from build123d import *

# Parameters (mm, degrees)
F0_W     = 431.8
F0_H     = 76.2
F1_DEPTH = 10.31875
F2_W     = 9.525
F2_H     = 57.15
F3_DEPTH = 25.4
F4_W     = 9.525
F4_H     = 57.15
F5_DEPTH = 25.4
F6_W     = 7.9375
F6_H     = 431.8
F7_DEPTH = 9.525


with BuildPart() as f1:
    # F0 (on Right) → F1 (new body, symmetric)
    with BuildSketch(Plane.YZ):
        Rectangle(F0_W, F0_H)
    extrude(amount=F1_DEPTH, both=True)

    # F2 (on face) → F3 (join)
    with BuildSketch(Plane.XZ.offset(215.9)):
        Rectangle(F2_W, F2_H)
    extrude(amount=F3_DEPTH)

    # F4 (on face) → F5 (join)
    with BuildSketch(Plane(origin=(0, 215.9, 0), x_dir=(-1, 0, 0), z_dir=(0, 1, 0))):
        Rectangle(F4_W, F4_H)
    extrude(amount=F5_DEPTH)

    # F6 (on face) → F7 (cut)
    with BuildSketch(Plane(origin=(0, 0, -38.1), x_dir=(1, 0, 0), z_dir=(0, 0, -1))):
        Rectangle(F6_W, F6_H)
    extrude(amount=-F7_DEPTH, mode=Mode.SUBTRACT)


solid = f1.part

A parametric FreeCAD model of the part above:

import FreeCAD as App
import Part
import Sketcher

V = App.Vector
Q = App.Units.Quantity


def add_polygon(sketch, points):
    """Adds a closed chain of lines whose ends are joined by coincident constraints."""
    first, n = sketch.GeometryCount, len(points)
    for a, b in zip(points, points[1:] + points[:1]):
        sketch.addGeometry(Part.LineSegment(App.Vector(*a, 0), App.Vector(*b, 0)), False)
    for i in range(n):
        sketch.addConstraint(Sketcher.Constraint("Coincident", first + i, 2, first + (i + 1) % n, 1))

doc = App.newDocument("Part")
params = doc.addObject("Spreadsheet::Sheet", "Params")
for row, (alias, value) in enumerate([
    ("sketch1_width", "17 in"),
    ("sketch1_height", "3 in"),
    ("pad1_length", "0.8125 in"),
    ("sketch2_height", "2.25 in"),
    ("sketch2_width", "0.375 in"),
    ("pad2_length", "1 in"),
    ("sketch3_height", "2.25 in"),
    ("sketch3_width", "0.375 in"),
    ("pad3_length", "1 in"),
    ("sketch4_height", "17 in"),
    ("sketch4_width", "0.3125 in"),
    ("pocket1_length", "0.375 in"),
], start=1):
    params.set(f"A{row}", alias)
    params.set(f"B{row}", "=" + value)
    params.setAlias(f"B{row}", alias)

body = doc.addObject("PartDesign::Body", "Body")

sketch1 = doc.addObject("Sketcher::SketchObject", "Sketch")
body.addObject(sketch1)
sketch1.AttachmentSupport = (doc.YZ_Plane, [""])
sketch1.MapMode = "FlatFace"
add_polygon(sketch1, [(-216, 38), (-216, -38), (216, -38), (216, 38)])
sketch1.addConstraint(Sketcher.Constraint("Vertical", 0))
sketch1.addConstraint(Sketcher.Constraint("Horizontal", 1))
sketch1.addConstraint(Sketcher.Constraint("Vertical", 2))
sketch1.addConstraint(Sketcher.Constraint("Horizontal", 3))
sketch1.addConstraint(Sketcher.Constraint("Symmetric", 0, 2, 2, 2, -1, 1))
sketch1.addConstraint(Sketcher.Constraint("DistanceX", 1, 1, 1, 2, Q("17 in")))
sketch1.addConstraint(Sketcher.Constraint("DistanceY", 0, 2, 0, 1, Q("3 in")))
sketch1.setExpression("Constraints[9]", "Params.sketch1_width")
sketch1.setExpression("Constraints[10]", "Params.sketch1_height")
pad1 = doc.addObject("PartDesign::Pad", "Pad")
body.addObject(pad1)
pad1.Profile = sketch1
pad1.setExpression("Length", "Params.pad1_length")
pad1.Midplane = True

sketch2 = doc.addObject("Sketcher::SketchObject", "Sketch001")
body.addObject(sketch2)
sketch2.AttachmentSupport = (doc.XZ_Plane, [""])
sketch2.MapMode = "FlatFace"
sketch2.AttachmentOffset = App.Placement(V(0, 0, 8.5 * 25.4), App.Rotation())
add_polygon(sketch2, [(-5, 29), (-5, -29), (5, -29), (5, 29)])
sketch2.addConstraint(Sketcher.Constraint("Vertical", 0))
sketch2.addConstraint(Sketcher.Constraint("Horizontal", 1))
sketch2.addConstraint(Sketcher.Constraint("Vertical", 2))
sketch2.addConstraint(Sketcher.Constraint("Horizontal", 3))
sketch2.addConstraint(Sketcher.Constraint("Symmetric", 0, 2, 2, 2, -1, 1))
sketch2.addConstraint(Sketcher.Constraint("DistanceY", 0, 2, 0, 1, Q("2.25 in")))
sketch2.addConstraint(Sketcher.Constraint("DistanceX", 1, 1, 1, 2, Q("0.375 in")))
sketch2.setExpression("Constraints[9]", "Params.sketch2_height")
sketch2.setExpression("Constraints[10]", "Params.sketch2_width")
pad2 = doc.addObject("PartDesign::Pad", "Pad001")
body.addObject(pad2)
pad2.Profile = sketch2
pad2.setExpression("Length", "Params.pad2_length")

sketch3 = doc.addObject("Sketcher::SketchObject", "Sketch002")
body.addObject(sketch3)
sketch3.AttachmentSupport = (doc.XZ_Plane, [""])
sketch3.MapMode = "FlatFace"
sketch3.AttachmentOffset = App.Placement(V(0, 0, -8.5 * 25.4), App.Rotation())
add_polygon(sketch3, [(5, 29), (5, -29), (-5, -29), (-5, 29)])
sketch3.addConstraint(Sketcher.Constraint("Vertical", 0))
sketch3.addConstraint(Sketcher.Constraint("Horizontal", 1))
sketch3.addConstraint(Sketcher.Constraint("Vertical", 2))
sketch3.addConstraint(Sketcher.Constraint("Horizontal", 3))
sketch3.addConstraint(Sketcher.Constraint("Symmetric", 0, 2, 2, 2, -1, 1))
sketch3.addConstraint(Sketcher.Constraint("DistanceY", 0, 2, 0, 1, Q("2.25 in")))
sketch3.addConstraint(Sketcher.Constraint("DistanceX", 1, 2, 1, 1, Q("0.375 in")))
sketch3.setExpression("Constraints[9]", "Params.sketch3_height")
sketch3.setExpression("Constraints[10]", "Params.sketch3_width")
pad3 = doc.addObject("PartDesign::Pad", "Pad002")
body.addObject(pad3)
pad3.Profile = sketch3
pad3.setExpression("Length", "Params.pad3_length")
pad3.Reversed = True

sketch4 = doc.addObject("Sketcher::SketchObject", "Sketch003")
body.addObject(sketch4)
sketch4.AttachmentSupport = (doc.XY_Plane, [""])
sketch4.MapMode = "FlatFace"
sketch4.AttachmentOffset = App.Placement(V(0, 0, -1.5 * 25.4), App.Rotation())
add_polygon(sketch4, [(-4, -216), (-4, 216), (4, 216), (4, -216)])
sketch4.addConstraint(Sketcher.Constraint("Vertical", 0))
sketch4.addConstraint(Sketcher.Constraint("Horizontal", 1))
sketch4.addConstraint(Sketcher.Constraint("Vertical", 2))
sketch4.addConstraint(Sketcher.Constraint("Horizontal", 3))
sketch4.addConstraint(Sketcher.Constraint("Symmetric", 0, 2, 2, 2, -1, 1))
sketch4.addConstraint(Sketcher.Constraint("DistanceY", 0, 1, 0, 2, Q("17 in")))
sketch4.addConstraint(Sketcher.Constraint("DistanceX", 1, 1, 1, 2, Q("0.3125 in")))
sketch4.setExpression("Constraints[9]", "Params.sketch4_height")
sketch4.setExpression("Constraints[10]", "Params.sketch4_width")
pocket1 = doc.addObject("PartDesign::Pocket", "Pocket")
body.addObject(pocket1)
pocket1.Profile = sketch4
pocket1.setExpression("Length", "Params.pocket1_length")
pocket1.Reversed = True

doc.recompute()
